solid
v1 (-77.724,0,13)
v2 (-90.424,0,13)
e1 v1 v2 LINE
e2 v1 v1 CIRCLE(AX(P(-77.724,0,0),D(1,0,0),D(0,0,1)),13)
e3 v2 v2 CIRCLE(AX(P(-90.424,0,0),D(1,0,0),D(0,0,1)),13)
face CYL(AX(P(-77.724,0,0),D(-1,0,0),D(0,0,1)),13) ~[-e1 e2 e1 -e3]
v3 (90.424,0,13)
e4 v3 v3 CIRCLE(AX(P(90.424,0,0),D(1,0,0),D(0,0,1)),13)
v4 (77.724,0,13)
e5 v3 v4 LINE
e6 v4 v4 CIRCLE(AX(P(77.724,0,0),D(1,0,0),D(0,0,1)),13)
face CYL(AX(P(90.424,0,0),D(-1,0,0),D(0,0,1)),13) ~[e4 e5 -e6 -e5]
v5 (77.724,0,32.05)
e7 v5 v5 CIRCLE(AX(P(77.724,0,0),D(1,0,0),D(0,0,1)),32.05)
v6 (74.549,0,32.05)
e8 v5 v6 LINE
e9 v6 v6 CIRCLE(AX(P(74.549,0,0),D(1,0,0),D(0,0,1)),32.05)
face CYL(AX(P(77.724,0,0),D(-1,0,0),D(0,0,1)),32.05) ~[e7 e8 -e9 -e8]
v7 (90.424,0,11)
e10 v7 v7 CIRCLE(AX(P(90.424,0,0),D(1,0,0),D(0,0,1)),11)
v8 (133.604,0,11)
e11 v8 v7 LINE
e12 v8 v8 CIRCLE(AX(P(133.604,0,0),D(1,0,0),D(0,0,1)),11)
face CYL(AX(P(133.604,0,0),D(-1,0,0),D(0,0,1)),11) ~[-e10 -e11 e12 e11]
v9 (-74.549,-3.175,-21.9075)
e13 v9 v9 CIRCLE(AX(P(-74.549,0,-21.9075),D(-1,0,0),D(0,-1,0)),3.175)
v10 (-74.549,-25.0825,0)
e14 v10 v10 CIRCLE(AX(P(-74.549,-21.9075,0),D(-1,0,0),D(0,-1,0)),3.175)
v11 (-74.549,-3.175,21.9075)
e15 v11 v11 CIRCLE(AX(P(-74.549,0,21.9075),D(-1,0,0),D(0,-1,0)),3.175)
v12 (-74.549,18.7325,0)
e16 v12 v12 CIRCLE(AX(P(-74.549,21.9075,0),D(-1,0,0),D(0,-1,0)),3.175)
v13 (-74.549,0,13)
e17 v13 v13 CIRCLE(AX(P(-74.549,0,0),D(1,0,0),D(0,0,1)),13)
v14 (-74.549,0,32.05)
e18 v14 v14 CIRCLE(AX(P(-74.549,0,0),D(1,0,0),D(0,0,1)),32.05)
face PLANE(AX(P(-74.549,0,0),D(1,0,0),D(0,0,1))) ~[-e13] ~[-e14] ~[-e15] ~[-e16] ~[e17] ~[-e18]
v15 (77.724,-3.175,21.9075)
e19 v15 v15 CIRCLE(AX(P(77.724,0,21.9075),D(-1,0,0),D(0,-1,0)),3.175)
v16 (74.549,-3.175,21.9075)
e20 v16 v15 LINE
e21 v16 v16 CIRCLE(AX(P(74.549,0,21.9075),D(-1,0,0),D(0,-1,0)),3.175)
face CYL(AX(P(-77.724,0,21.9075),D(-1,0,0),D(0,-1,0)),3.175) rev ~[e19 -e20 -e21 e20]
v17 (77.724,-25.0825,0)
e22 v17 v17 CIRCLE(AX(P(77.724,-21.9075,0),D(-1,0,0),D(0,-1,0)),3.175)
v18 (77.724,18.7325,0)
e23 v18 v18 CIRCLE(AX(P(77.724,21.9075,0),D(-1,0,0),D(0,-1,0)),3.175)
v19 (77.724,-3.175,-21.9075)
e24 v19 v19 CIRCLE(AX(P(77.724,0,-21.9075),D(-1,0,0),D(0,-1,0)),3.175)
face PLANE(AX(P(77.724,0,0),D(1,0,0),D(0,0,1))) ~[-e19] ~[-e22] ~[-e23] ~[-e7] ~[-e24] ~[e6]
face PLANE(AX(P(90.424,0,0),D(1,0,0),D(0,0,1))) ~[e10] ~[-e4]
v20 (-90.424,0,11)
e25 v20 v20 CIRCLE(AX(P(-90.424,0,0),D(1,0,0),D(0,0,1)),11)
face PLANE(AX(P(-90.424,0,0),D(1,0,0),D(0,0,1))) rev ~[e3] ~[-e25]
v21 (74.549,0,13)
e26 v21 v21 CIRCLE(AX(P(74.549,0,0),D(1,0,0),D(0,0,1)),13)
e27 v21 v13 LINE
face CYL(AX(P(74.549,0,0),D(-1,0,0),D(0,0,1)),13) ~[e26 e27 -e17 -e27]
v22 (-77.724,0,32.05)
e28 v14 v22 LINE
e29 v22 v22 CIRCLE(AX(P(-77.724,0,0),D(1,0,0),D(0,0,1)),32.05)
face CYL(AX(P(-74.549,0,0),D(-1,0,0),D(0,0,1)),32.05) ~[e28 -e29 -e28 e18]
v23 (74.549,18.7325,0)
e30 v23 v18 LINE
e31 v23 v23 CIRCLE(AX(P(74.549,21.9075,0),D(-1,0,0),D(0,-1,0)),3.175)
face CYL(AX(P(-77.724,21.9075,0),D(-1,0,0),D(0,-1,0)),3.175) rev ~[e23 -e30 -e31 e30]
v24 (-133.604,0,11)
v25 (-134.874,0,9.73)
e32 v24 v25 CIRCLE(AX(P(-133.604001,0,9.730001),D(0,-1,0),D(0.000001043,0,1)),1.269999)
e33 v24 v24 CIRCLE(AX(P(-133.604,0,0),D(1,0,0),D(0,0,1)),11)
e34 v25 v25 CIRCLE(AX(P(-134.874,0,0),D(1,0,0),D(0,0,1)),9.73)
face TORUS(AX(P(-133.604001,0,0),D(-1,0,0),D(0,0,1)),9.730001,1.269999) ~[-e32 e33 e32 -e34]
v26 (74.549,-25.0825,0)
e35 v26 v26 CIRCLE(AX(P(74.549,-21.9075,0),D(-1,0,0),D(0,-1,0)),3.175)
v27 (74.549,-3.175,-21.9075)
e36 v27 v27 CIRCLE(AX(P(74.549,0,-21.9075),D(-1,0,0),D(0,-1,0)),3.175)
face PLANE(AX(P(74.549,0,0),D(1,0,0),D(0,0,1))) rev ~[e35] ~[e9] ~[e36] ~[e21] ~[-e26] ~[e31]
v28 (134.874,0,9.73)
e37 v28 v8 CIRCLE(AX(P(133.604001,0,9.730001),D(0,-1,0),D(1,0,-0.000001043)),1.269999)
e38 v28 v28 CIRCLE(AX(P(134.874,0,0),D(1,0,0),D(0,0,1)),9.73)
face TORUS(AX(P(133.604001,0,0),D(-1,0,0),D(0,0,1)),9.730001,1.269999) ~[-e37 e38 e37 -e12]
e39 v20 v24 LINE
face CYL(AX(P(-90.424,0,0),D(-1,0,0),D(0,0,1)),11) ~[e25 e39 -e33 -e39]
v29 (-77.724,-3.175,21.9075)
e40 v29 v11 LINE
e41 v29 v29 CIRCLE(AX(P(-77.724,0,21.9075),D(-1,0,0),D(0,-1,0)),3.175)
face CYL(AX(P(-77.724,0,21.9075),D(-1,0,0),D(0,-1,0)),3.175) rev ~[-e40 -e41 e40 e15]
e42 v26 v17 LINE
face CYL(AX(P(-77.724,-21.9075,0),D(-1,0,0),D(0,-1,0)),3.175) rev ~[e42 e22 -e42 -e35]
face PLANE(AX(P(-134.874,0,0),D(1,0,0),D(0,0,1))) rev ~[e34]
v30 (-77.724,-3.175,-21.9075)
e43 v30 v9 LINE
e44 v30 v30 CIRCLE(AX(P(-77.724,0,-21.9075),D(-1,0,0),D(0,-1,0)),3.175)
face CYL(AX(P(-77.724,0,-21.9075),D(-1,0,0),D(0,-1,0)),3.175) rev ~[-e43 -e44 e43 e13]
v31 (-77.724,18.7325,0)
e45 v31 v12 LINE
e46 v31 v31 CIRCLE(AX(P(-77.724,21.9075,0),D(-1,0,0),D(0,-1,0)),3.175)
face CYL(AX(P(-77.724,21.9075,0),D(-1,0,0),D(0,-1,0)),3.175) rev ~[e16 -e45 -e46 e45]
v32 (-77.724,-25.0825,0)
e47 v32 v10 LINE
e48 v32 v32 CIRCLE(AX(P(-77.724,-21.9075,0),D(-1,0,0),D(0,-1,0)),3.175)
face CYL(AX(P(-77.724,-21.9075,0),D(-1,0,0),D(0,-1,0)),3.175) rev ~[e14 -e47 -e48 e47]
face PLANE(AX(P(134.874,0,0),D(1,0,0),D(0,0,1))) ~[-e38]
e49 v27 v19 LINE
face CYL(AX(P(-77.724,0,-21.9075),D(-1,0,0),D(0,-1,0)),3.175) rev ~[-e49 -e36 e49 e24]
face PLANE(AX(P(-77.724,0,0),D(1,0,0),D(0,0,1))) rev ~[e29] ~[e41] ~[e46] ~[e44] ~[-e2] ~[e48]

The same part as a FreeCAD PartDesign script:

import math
import FreeCAD as App
import Part
import Sketcher

V = App.Vector
Q = App.Units.Quantity

doc = App.newDocument("Part")
body = doc.addObject("PartDesign::Body", "Body")

# Sketch on XZ plane
sketch1 = doc.addObject("Sketcher::SketchObject", "Sketch")
body.addObject(sketch1)
sketch1.AttachmentSupport = (doc.XZ_Plane, [""])
sketch1.MapMode = "FlatFace"
sketch1.addGeometry([
    Part.LineSegment(V(-134.874, 9.73, 0), V(-134.874, 0, 0)),  # 0
    Part.LineSegment(V(-134.874, 0, 0), V(134.874, 0, 0)),  # 1
    Part.LineSegment(V(134.874, 0, 0), V(134.874, 9.73, 0)),  # 2
    Part.ArcOfCircle(Part.Circle(V(133.604001, 9.730001, 0), V(0, 0, 1), 1.269999), math.radians(-0.00006), math.radians(90.00006)),  # 3
    Part.LineSegment(V(133.604, 11, 0), V(90.424, 11, 0)),  # 4
    Part.LineSegment(V(90.424, 11, 0), V(90.424, 13, 0)),  # 5
    Part.LineSegment(V(90.424, 13, 0), V(77.724, 13, 0)),  # 6
    Part.LineSegment(V(77.724, 13, 0), V(77.724, 32.05, 0)),  # 7
    Part.LineSegment(V(77.724, 32.05, 0), V(74.549, 32.05, 0)),  # 8
    Part.LineSegment(V(74.549, 32.05, 0), V(74.549, 13, 0)),  # 9
    Part.LineSegment(V(74.549, 13, 0), V(-74.549, 13, 0)),  # 10
    Part.LineSegment(V(-74.549, 13, 0), V(-74.549, 32.05, 0)),  # 11
    Part.LineSegment(V(-74.549, 32.05, 0), V(-77.724, 32.05, 0)),  # 12
    Part.LineSegment(V(-77.724, 32.05, 0), V(-77.724, 13, 0)),  # 13
    Part.LineSegment(V(-77.724, 13, 0), V(-90.424, 13, 0)),  # 14
    Part.LineSegment(V(-90.424, 13, 0), V(-90.424, 11, 0)),  # 15
    Part.LineSegment(V(-90.424, 11, 0), V(-133.604, 11, 0)),  # 16
    Part.ArcOfCircle(Part.Circle(V(-133.604001, 9.730001, 0), V(0, 0, 1), 1.269999), math.radians(89.99994), math.radians(180.00006)),  # 17
], False)
sketch1.addConstraint([
    Sketcher.Constraint("Coincident", 0, 2, 1, 1),
    Sketcher.Constraint("Coincident", 1, 2, 2, 1),
    Sketcher.Constraint("Tangent", 2, 2, 3, 1),
    Sketcher.Constraint("Tangent", 3, 2, 4, 1),
    Sketcher.Constraint("Coincident", 4, 2, 5, 1),
    Sketcher.Constraint("Coincident", 5, 2, 6, 1),
    Sketcher.Constraint("Coincident", 6, 2, 7, 1),
    Sketcher.Constraint("Coincident", 7, 2, 8, 1),
    Sketcher.Constraint("Coincident", 8, 2, 9, 1),
    Sketcher.Constraint("Coincident", 9, 2, 10, 1),
    Sketcher.Constraint("Coincident", 10, 2, 11, 1),
    Sketcher.Constraint("Coincident", 11, 2, 12, 1),
    Sketcher.Constraint("Coincident", 12, 2, 13, 1),
    Sketcher.Constraint("Coincident", 13, 2, 14, 1),
    Sketcher.Constraint("Coincident", 14, 2, 15, 1),
    Sketcher.Constraint("Coincident", 15, 2, 16, 1),
    Sketcher.Constraint("Tangent", 16, 2, 17, 1),
    Sketcher.Constraint("Tangent", 17, 2, 0, 1),
    Sketcher.Constraint("Vertical", 0),
    Sketcher.Constraint("Horizontal", 1),
    Sketcher.Constraint("Vertical", 2),
    Sketcher.Constraint("Horizontal", 4),
    Sketcher.Constraint("Vertical", 5),
    Sketcher.Constraint("Horizontal", 6),
    Sketcher.Constraint("Vertical", 7),
    Sketcher.Constraint("Horizontal", 8),
    Sketcher.Constraint("Vertical", 9),
    Sketcher.Constraint("Horizontal", 10),
    Sketcher.Constraint("Vertical", 11),
    Sketcher.Constraint("Horizontal", 12),
    Sketcher.Constraint("Vertical", 13),
    Sketcher.Constraint("Horizontal", 14),
    Sketcher.Constraint("Vertical", 15),
    Sketcher.Constraint("Horizontal", 16),
    Sketcher.Constraint("Equal", 3, 17),
    Sketcher.Constraint("Symmetric", 0, 2, 1, 2, -1, 1),
    Sketcher.Constraint("Symmetric", 8, 2, 11, 2, -2),
    Sketcher.Constraint("Symmetric", 6, 2, 13, 2, -2),
    Sketcher.Constraint("Symmetric", 4, 2, 15, 2, -2),
    Sketcher.Constraint("Horizontal", 6, 2, 9, 2),
    Sketcher.Constraint("Radius", 3, Q("0.0499999 in")),
    Sketcher.Constraint("DistanceX", 4, 2, 4, 1, Q("1.7 in")),
    Sketcher.Constraint("DistanceX", 6, 2, 6, 1, Q("0.5 in")),
    Sketcher.Constraint("DistanceX", 1, 1, 1, 2, Q("10.62 in")),
    Sketcher.Constraint("DistanceX", 10, 2, 10, 1, Q("5.87 in")),
    Sketcher.Constraint("DistanceY", 7, 1, 7, 2, Q("0.75 in")),
    Sketcher.Constraint("DistanceY", 0, 2, 0, 1, 9.73),
    Sketcher.Constraint("DistanceY", 5, 1, 5, 2, 2.0),
])
revolution = doc.addObject("PartDesign::Revolution", "Revolution")
body.addObject(revolution)
revolution.Profile = sketch1
revolution.ReferenceAxis = (sketch1, ["H_Axis"])
revolution.Angle = 360

# Sketch on YZ plane
sketch2 = doc.addObject("Sketcher::SketchObject", "Sketch001")
body.addObject(sketch2)
sketch2.AttachmentSupport = (doc.YZ_Plane, [""])
sketch2.MapMode = "FlatFace"
sketch2.AttachmentOffset = App.Placement(V(0, 0, -3.06 * 25.4), App.Rotation())
sketch2.addGeometry([
    Part.Circle(V(0, 21.9075, 0), V(0, 0, 1), 3.175),
    Part.Circle(V(21.9075, 0, 0), V(0, 0, 1), 3.175),
    Part.Circle(V(0, -21.9075, 0), V(0, 0, 1), 3.175),
    Part.Circle(V(-21.9075, 0, 0), V(0, 0, 1), 3.175),
], False)
sketch2.addConstraint([
    Sketcher.Constraint("Equal", 0, 1),
    Sketcher.Constraint("Equal", 1, 2),
    Sketcher.Constraint("Equal", 2, 3),
    Sketcher.Constraint("Symmetric", 0, 3, 2, 3, -1, 1),
    Sketcher.Constraint("Symmetric", 1, 3, 3, 3, -1, 1),
    Sketcher.Constraint("PointOnObject", 0, 3, -2),
    Sketcher.Constraint("PointOnObject", 1, 3, -1),
    Sketcher.Constraint("Diameter", 0, Q("0.25 in")),
    Sketcher.Constraint("DistanceY", 2, 3, 0, 3, Q("1.725 in")),
    Sketcher.Constraint("DistanceX", 3, 3, 1, 3, Q("1.725 in")),
])
pocket1 = doc.addObject("PartDesign::Pocket", "Pocket")
body.addObject(pocket1)
pocket1.Profile = sketch2
pocket1.Length = Q("7 in")
pocket1.Reversed = True

doc.recompute()
